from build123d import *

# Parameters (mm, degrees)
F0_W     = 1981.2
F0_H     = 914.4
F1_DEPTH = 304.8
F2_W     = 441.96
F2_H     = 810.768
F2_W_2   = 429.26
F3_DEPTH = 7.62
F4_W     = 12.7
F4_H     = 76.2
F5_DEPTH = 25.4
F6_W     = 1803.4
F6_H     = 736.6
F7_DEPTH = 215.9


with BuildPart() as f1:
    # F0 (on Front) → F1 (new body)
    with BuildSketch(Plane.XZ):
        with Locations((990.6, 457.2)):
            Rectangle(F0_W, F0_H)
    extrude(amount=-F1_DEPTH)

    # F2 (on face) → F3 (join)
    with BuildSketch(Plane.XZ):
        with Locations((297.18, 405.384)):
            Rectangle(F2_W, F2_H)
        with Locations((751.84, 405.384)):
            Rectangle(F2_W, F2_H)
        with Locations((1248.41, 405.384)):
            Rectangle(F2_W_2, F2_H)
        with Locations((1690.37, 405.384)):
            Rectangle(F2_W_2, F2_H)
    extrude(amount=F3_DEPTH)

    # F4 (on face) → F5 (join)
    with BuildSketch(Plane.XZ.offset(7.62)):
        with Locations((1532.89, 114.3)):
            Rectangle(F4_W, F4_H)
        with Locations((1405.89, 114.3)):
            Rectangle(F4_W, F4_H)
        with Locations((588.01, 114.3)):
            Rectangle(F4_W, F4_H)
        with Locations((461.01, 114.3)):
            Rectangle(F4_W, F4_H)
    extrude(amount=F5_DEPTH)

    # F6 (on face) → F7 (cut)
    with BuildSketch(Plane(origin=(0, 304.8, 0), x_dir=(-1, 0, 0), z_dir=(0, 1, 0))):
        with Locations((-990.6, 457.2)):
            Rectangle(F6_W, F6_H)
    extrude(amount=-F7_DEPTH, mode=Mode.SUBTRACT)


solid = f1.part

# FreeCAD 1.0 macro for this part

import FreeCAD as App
import Part
import Sketcher

V = App.Vector
Q = App.Units.Quantity


def add_polygon(sketch, points):
    """Adds a closed chain of lines whose ends are joined by coincident constraints."""
    first, n = sketch.GeometryCount, len(points)
    for a, b in zip(points, points[1:] + points[:1]):
        sketch.addGeometry(Part.LineSegment(App.Vector(*a, 0), App.Vector(*b, 0)), False)
    for i in range(n):
        sketch.addConstraint(Sketcher.Constraint("Coincident", first + i, 2, first + (i + 1) % n, 1))

doc = App.newDocument("Part")
params = doc.addObject("Spreadsheet::Sheet", "Params")
for row, (alias, value) in enumerate([
    ("sketch1_width", "78 in"),
    ("sketch1_height", "36 in"),
    ("pad1_length", "12 in"),
    ("sketch2_width", "17.4 in"),
    ("sketch2_width2", "16.9 in"),
    ("sketch2_height", "31.92 in"),
    ("pad2_length", "0.3 in"),
    ("sketch3_height", "3 in"),
    ("sketch3_width", "0.5 in"),
    ("pad3_length", "1 in"),
    ("sketch4_width", "71 in"),
    ("sketch4_height", "29 in"),
    ("pocket1_length", "8.5 in"),
], start=1):
    params.set(f"A{row}", alias)
    params.set(f"B{row}", "=" + value)
    params.setAlias(f"B{row}", alias)

body = doc.addObject("PartDesign::Body", "Body")

# Sketch on XZ plane
sketch1 = body.newObject("Sketcher::SketchObject", "Sketch")
sketch1.AttachmentSupport = (doc.getObject("XZ_Plane"), [""])
sketch1.MapMode = "FlatFace"
add_polygon(sketch1, [(0, 914.4), (0, 0), (1981.2, 0), (1981.2, 914.4)])  # lines 0-3
sketch1.addConstraint([
    Sketcher.Constraint("Vertical", 0),
    Sketcher.Constraint("Horizontal", 1),
    Sketcher.Constraint("Vertical", 2),
    Sketcher.Constraint("Horizontal", 3),
    Sketcher.Constraint("Coincident", 0, 2, -1, 1),
    Sketcher.Constraint("DistanceX", 1, 1, 1, 2, Q("78 in")),
    Sketcher.Constraint("DistanceY", 0, 2, 0, 1, Q("36 in")),
])
sketch1.setExpression("Constraints[9]", "Params.sketch1_width")
sketch1.setExpression("Constraints[10]", "Params.sketch1_height")
pad1 = body.newObject("PartDesign::Pad", "Pad")
pad1.Profile = sketch1
pad1.setExpression("Length", "Params.pad1_length")
pad1.Reversed = True

# Sketch on XZ plane
sketch2 = body.newObject("Sketcher::SketchObject", "Sketch001")
sketch2.AttachmentSupport = (doc.getObject("XZ_Plane"), [""])
sketch2.MapMode = "FlatFace"
add_polygon(sketch2, [(76.2, 810.768), (76.2, 0), (518.16, 0), (518.16, 810.768)])  # lines 0-3
add_polygon(sketch2, [(530.86, 810.768), (530.86, 0), (972.82, 0), (972.82, 810.768)])  # lines 4-7
add_polygon(sketch2, [(1033.78, 810.768), (1033.78, 0), (1463.04, 0), (1463.04, 810.768)])  # lines 8-11
add_polygon(sketch2, [(1475.74, 810.768), (1475.74, 0), (1905, 0), (1905, 810.768)])  # lines 12-15
sketch2.addConstraint([
    Sketcher.Constraint("Vertical", 0),
    Sketcher.Constraint("Horizontal", 1),
    Sketcher.Constraint("Vertical", 2),
    Sketcher.Constraint("Horizontal", 3),
    Sketcher.Constraint("Vertical", 4),
    Sketcher.Constraint("Horizontal", 5),
    Sketcher.Constraint("Vertical", 6),
    Sketcher.Constraint("Horizontal", 7),
    Sketcher.Constraint("Vertical", 8),
    Sketcher.Constraint("Horizontal", 9),
    Sketcher.Constraint("Vertical", 10),
    Sketcher.Constraint("Horizontal", 11),
    Sketcher.Constraint("Vertical", 12),
    Sketcher.Constraint("Horizontal", 13),
    Sketcher.Constraint("Vertical", 14),
    Sketcher.Constraint("Horizontal", 15),
    Sketcher.Constraint("PointOnObject", 0, 2, -1),
    Sketcher.Constraint("PointOnObject", 4, 2, -1),
    Sketcher.Constraint("PointOnObject", 8, 2, -1),
    Sketcher.Constraint("PointOnObject", 12, 2, -1),
    Sketcher.Constraint("Horizontal", 3, 2, 6, 2),
    Sketcher.Constraint("Horizontal", 7, 2, 10, 2),
    Sketcher.Constraint("Horizontal", 11, 2, 14, 2),
    Sketcher.Constraint("Equal", 3, 5),
    Sketcher.Constraint("Equal", 11, 13),
    Sketcher.Constraint("DistanceX", 1, 1, 1, 2, Q("17.4 in")),
    Sketcher.Constraint("DistanceX", 9, 1, 9, 2, Q("16.9 in")),
    Sketcher.Constraint("DistanceX", -1, 1, 0, 2, Q("3 in")),
    Sketcher.Constraint("DistanceX", -1, 1, 13, 2, Q("75 in")),
    Sketcher.Constraint("DistanceY", 0, 2, 0, 1, Q("31.92 in")),
    Sketcher.Constraint("DistanceX", -1, 1, 4, 2, Q("20.9 in")),
    Sketcher.Constraint("DistanceX", -1, 1, 8, 2, Q("40.7 in")),
])
sketch2.setExpression("Constraints[41]", "Params.sketch2_width")
sketch2.setExpression("Constraints[42]", "Params.sketch2_width2")
sketch2.setExpression("Constraints[45]", "Params.sketch2_height")
pad2 = body.newObject("PartDesign::Pad", "Pad001")
pad2.Profile = sketch2
pad2.setExpression("Length", "Params.pad2_length")

# Sketch on XZ plane
sketch3 = body.newObject("Sketcher::SketchObject", "Sketch002")
sketch3.AttachmentSupport = (doc.getObject("XZ_Plane"), [""])
sketch3.MapMode = "FlatFace"
sketch3.AttachmentOffset = App.Placement(V(0, 0, 0.3 * 25.4), App.Rotation())
add_polygon(sketch3, [(1526.54, 152.4), (1526.54, 76.2), (1539.24, 76.2), (1539.24, 152.4)])  # lines 0-3
add_polygon(sketch3, [(1399.54, 152.4), (1399.54, 76.2), (1412.24, 76.2), (1412.24, 152.4)])  # lines 4-7
add_polygon(sketch3, [(581.66, 152.4), (581.66, 76.2), (594.36, 76.2), (594.36, 152.4)])  # lines 8-11
add_polygon(sketch3, [(454.66, 152.4), (454.66, 76.2), (467.36, 76.2), (467.36, 152.4)])  # lines 12-15
sketch3.addConstraint([
    Sketcher.Constraint("Vertical", 0),
    Sketcher.Constraint("Horizontal", 1),
    Sketcher.Constraint("Vertical", 2),
    Sketcher.Constraint("Horizontal", 3),
    Sketcher.Constraint("Vertical", 4),
    Sketcher.Constraint("Horizontal", 5),
    Sketcher.Constraint("Vertical", 6),
    Sketcher.Constraint("Horizontal", 7),
    Sketcher.Constraint("Vertical", 8),
    Sketcher.Constraint("Horizontal", 9),
    Sketcher.Constraint("Vertical", 10),
    Sketcher.Constraint("Horizontal", 11),
    Sketcher.Constraint("Vertical", 12),
    Sketcher.Constraint("Horizontal", 13),
    Sketcher.Constraint("Vertical", 14),
    Sketcher.Constraint("Horizontal", 15),
    Sketcher.Constraint("Horizontal", 1, 2, 4, 2),
    Sketcher.Constraint("Horizontal", 3, 2, 6, 2),
    Sketcher.Constraint("Horizontal", 5, 2, 8, 2),
    Sketcher.Constraint("Horizontal", 7, 2, 10, 2),
    Sketcher.Constraint("Horizontal", 9, 2, 12, 2),
    Sketcher.Constraint("Horizontal", 11, 2, 14, 2),
    Sketcher.Constraint("Equal", 3, 5),
    Sketcher.Constraint("Equal", 7, 9),
    Sketcher.Constraint("Equal", 11, 13),
    Sketcher.Constraint("DistanceY", 0, 2, 0, 1, Q("3 in")),
    Sketcher.Constraint("DistanceX", 1, 1, 1, 2, Q("0.5 in")),
    Sketcher.Constraint("DistanceY", -1, 1, 0, 2, Q("3 in")),
    Sketcher.Constraint("DistanceX", 4, 2, 0, 2, Q("5 in")),
    Sketcher.Constraint("DistanceX", 12, 2, 8, 2, Q("5 in")),
    Sketcher.Constraint("DistanceX", -1, 1, 0, 2, Q("60.1 in")),
    Sketcher.Constraint("DistanceX", -1, 1, 8, 2, Q("22.9 in")),
])
sketch3.setExpression("Constraints[41]", "Params.sketch3_height")
sketch3.setExpression("Constraints[42]", "Params.sketch3_width")
pad3 = body.newObject("PartDesign::Pad", "Pad002")
pad3.Profile = sketch3
pad3.setExpression("Length", "Params.pad3_length")

# Sketch on XZ plane
sketch4 = body.newObject("Sketcher::SketchObject", "Sketch003")
sketch4.AttachmentSupport = (doc.getObject("XZ_Plane"), [""])
sketch4.MapMode = "FlatFace"
sketch4.AttachmentOffset = App.Placement(V(0, 0, -12 * 25.4), App.Rotation())
add_polygon(sketch4, [(1892.3, 825.5), (1892.3, 88.9), (88.9, 88.9), (88.9, 825.5)])  # lines 0-3
sketch4.addConstraint([
    Sketcher.Constraint("Vertical", 0),
    Sketcher.Constraint("Horizontal", 1),
    Sketcher.Constraint("Vertical", 2),
    Sketcher.Constraint("Horizontal", 3),
    Sketcher.Constraint("DistanceX", 1, 2, 1, 1, Q("71 in")),
    Sketcher.Constraint("DistanceY", 0, 2, 0, 1, Q("29 in")),
    Sketcher.Constraint("DistanceX", -1, 1, 0, 2, Q("74.5 in")),
    Sketcher.Constraint("DistanceY", -1, 1, 0, 2, Q("3.5 in")),
])
sketch4.setExpression("Constraints[8]", "Params.sketch4_width")
sketch4.setExpression("Constraints[9]", "Params.sketch4_height")
pocket1 = body.newObject("PartDesign::Pocket", "Pocket")
pocket1.Profile = sketch4
pocket1.setExpression("Length", "Params.pocket1_length")
pocket1.Reversed = True

doc.recompute()
